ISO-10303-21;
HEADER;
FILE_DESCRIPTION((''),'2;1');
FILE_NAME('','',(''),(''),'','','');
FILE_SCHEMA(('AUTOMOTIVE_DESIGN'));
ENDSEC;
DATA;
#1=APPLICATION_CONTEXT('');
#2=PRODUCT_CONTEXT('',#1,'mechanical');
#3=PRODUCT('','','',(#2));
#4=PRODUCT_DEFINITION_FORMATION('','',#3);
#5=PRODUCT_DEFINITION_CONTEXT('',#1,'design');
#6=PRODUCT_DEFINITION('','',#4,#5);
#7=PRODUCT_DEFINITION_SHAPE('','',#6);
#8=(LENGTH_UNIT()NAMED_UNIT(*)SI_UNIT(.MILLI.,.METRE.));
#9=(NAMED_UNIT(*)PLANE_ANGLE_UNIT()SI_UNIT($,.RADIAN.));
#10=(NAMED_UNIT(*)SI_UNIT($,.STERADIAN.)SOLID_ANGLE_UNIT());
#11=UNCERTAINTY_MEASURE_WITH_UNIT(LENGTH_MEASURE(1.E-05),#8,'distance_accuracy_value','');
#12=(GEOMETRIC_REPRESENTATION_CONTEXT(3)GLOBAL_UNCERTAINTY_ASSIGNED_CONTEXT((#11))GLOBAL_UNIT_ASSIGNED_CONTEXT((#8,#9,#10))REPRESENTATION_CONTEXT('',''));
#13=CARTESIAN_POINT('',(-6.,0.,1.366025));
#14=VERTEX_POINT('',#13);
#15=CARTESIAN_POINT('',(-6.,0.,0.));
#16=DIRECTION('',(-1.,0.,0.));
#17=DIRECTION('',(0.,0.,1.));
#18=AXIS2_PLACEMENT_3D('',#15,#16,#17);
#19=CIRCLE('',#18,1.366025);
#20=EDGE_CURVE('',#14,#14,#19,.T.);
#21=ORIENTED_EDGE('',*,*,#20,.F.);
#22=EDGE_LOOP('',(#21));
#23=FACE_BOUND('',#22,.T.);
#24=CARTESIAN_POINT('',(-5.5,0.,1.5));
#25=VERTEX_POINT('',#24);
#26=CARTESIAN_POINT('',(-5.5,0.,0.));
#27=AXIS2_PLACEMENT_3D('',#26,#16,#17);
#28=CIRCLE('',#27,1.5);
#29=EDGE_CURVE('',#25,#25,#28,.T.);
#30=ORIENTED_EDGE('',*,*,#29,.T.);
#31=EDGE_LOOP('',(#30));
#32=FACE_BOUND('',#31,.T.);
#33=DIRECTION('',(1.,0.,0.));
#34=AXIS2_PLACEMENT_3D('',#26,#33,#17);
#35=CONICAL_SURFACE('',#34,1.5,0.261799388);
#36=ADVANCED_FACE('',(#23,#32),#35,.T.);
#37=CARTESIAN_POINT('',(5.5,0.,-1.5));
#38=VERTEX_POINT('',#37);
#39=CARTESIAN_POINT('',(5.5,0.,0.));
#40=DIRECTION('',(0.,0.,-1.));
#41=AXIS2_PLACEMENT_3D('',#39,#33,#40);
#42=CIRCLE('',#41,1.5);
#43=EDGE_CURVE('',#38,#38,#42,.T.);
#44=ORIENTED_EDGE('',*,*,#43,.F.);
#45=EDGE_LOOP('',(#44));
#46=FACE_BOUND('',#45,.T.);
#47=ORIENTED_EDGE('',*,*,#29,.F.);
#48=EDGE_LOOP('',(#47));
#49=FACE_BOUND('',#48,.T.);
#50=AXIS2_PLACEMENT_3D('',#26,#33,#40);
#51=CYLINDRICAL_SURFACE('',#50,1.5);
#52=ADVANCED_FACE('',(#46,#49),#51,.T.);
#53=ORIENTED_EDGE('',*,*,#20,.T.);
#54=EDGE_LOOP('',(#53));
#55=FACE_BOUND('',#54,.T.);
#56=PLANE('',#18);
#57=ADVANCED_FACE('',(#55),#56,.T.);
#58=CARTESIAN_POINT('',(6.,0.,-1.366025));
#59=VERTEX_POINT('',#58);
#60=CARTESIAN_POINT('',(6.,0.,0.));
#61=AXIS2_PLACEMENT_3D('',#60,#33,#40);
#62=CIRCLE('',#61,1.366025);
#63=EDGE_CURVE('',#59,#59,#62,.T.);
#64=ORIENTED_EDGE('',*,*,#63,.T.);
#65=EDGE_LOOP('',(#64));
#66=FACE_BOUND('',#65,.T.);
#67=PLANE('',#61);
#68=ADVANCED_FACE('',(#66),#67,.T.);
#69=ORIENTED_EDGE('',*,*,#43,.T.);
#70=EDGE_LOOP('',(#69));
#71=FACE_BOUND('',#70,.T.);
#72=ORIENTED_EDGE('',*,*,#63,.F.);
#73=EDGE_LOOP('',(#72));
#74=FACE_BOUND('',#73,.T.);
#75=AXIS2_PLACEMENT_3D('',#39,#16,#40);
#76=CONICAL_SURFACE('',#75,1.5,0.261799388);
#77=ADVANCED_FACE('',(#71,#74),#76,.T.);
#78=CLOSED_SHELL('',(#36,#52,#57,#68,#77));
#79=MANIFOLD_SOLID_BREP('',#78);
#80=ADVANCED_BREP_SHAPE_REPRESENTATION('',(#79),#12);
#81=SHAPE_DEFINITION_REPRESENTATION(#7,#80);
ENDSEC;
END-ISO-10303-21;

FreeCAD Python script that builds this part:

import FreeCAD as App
import Part
import Sketcher

V = App.Vector
Q = App.Units.Quantity

doc = App.newDocument("Part")
body = doc.addObject("PartDesign::Body", "Body")

# Sketch on YZ plane
sketch1 = doc.addObject("Sketcher::SketchObject", "Sketch")
body.addObject(sketch1)
sketch1.AttachmentSupport = (doc.YZ_Plane, [""])
sketch1.MapMode = "FlatFace"
sketch1.addGeometry(Part.Circle(V(0, 0, 0), V(0, 0, 1), 1.5), False)
sketch1.addConstraint(Sketcher.Constraint("Coincident", 0, 3, -1, 1))
sketch1.addConstraint(Sketcher.Constraint("Diameter", 0, Q("3 mm")))
pad1 = doc.addObject("PartDesign::Pad", "Pad")
body.addObject(pad1)
pad1.Profile = sketch1
pad1.Type = "TwoLengths"
pad1.Length = 5.5
pad1.Length2 = 5.5

# Sketch on YZ plane
sketch2 = doc.addObject("Sketcher::SketchObject", "Sketch001")
body.addObject(sketch2)
sketch2.AttachmentSupport = (doc.YZ_Plane, [""])
sketch2.MapMode = "FlatFace"
sketch2.AttachmentOffset = App.Placement(V(0, 0, 5.5), App.Rotation())
sketch2.addGeometry(Part.Circle(V(0, 0, 0), V(0, 0, 1), 1.5), False)
sketch2.addConstraint(Sketcher.Constraint("Coincident", 0, 3, -1, 1))
sketch2.addConstraint(Sketcher.Constraint("Diameter", 0, Q("3 mm")))
pad2 = doc.addObject("PartDesign::Pad", "Pad001")
body.addObject(pad2)
pad2.Profile = sketch2
pad2.Length = 0.5
pad2.TaperAngle = -15

# Sketch on YZ plane
sketch3 = doc.addObject("Sketcher::SketchObject", "Sketch002")
body.addObject(sketch3)
sketch3.AttachmentSupport = (doc.YZ_Plane, [""])
sketch3.MapMode = "FlatFace"
sketch3.AttachmentOffset = App.Placement(V(0, 0, -5.5), App.Rotation())
sketch3.addGeometry(Part.Circle(V(0, 0, 0), V(0, 0, 1), 1.5), False)
sketch3.addConstraint(Sketcher.Constraint("Coincident", 0, 3, -1, 1))
sketch3.addConstraint(Sketcher.Constraint("Diameter", 0, Q("3 mm")))
pad3 = doc.addObject("PartDesign::Pad", "Pad002")
body.addObject(pad3)
pad3.Profile = sketch3
pad3.Length = 0.5
pad3.Reversed = True
pad3.TaperAngle = -15

doc.recompute()
